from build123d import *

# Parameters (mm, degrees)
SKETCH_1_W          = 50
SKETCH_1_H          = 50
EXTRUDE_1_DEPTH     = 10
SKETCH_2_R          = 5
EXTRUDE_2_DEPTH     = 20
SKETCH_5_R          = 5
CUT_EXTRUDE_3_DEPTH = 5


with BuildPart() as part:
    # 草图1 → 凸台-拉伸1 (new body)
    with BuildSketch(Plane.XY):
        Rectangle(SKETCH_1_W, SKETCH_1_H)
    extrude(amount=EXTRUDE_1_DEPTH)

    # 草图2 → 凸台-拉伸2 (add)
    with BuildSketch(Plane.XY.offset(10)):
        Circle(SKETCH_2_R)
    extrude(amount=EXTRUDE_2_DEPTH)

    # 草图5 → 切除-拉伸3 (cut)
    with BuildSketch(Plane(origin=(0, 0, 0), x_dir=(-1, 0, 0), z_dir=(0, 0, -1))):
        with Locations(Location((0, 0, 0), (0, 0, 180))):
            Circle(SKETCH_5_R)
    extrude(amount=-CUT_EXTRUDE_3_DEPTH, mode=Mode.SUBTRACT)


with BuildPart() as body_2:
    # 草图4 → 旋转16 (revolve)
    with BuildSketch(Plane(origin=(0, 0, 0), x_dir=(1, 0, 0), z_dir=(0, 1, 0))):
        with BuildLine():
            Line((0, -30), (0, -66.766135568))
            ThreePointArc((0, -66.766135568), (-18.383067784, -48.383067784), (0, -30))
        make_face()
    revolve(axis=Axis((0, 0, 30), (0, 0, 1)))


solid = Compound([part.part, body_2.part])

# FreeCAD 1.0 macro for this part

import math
import FreeCAD as App
import Part
import Sketcher

doc = App.newDocument("Part")
body = doc.addObject("PartDesign::Body", "Body")

# Sketch on XY plane
sketch1 = body.newObject("Sketcher::SketchObject", "Sketch")
sketch1.AttachmentSupport = (doc.getObject("XY_Plane"), [""])
sketch1.MapMode = "FlatFace"
sketch1.addGeometry(Part.LineSegment(App.Vector(-25, 25, 0), App.Vector(-25, -25, 0)), False)
sketch1.addGeometry(Part.LineSegment(App.Vector(-25, -25, 0), App.Vector(25, -25, 0)), False)
sketch1.addGeometry(Part.LineSegment(App.Vector(25, -25, 0), App.Vector(25, 25, 0)), False)
sketch1.addGeometry(Part.LineSegment(App.Vector(25, 25, 0), App.Vector(-25, 25, 0)), False)
sketch1.addConstraint(Sketcher.Constraint("Coincident", 0, 2, 1, 1))
sketch1.addConstraint(Sketcher.Constraint("Coincident", 1, 2, 2, 1))
sketch1.addConstraint(Sketcher.Constraint("Coincident", 2, 2, 3, 1))
sketch1.addConstraint(Sketcher.Constraint("Coincident", 3, 2, 0, 1))
sketch1.addConstraint(Sketcher.Constraint("Vertical", 0))
sketch1.addConstraint(Sketcher.Constraint("Horizontal", 1))
sketch1.addConstraint(Sketcher.Constraint("Vertical", 2))
sketch1.addConstraint(Sketcher.Constraint("Horizontal", 3))
sketch1.addConstraint(Sketcher.Constraint("Symmetric", 0, 2, 2, 2, -1, 1))
sketch1.addConstraint(Sketcher.Constraint("Equal", 3, 0))
sketch1.addConstraint(Sketcher.Constraint("DistanceX", 1, 1, 1, 2, 50.0))
pad1 = body.newObject("PartDesign::Pad", "Pad")
pad1.Profile = sketch1
pad1.Length = 10

# Sketch on XY plane
sketch2 = body.newObject("Sketcher::SketchObject", "Sketch001")
sketch2.AttachmentSupport = (doc.getObject("XY_Plane"), [""])
sketch2.MapMode = "FlatFace"
sketch2.AttachmentOffset = App.Placement(App.Vector(0, 0, 10), App.Rotation())
sketch2.addGeometry(Part.Circle(App.Vector(0, 0, 0), App.Vector(0, 0, 1), 5), False)
sketch2.addConstraint(Sketcher.Constraint("Coincident", 0, 3, -1, 1))
sketch2.addConstraint(Sketcher.Constraint("Diameter", 0, 10.0))
pad2 = body.newObject("PartDesign::Pad", "Pad001")
pad2.Profile = sketch2
pad2.Length = 20

# Sketch on XY plane
sketch3 = body.newObject("Sketcher::SketchObject", "Sketch002")
sketch3.AttachmentSupport = (doc.getObject("XY_Plane"), [""])
sketch3.MapMode = "FlatFace"
sketch3.addGeometry(Part.Circle(App.Vector(0, 0, 0), App.Vector(0, 0, 1), 5), False)
sketch3.addConstraint(Sketcher.Constraint("Coincident", 0, 3, -1, 1))
sketch3.addConstraint(Sketcher.Constraint("Diameter", 0, 10.0))
pocket1 = body.newObject("PartDesign::Pocket", "Pocket")
pocket1.Profile = sketch3
pocket1.Length = 5
pocket1.Reversed = True
body2 = doc.addObject("PartDesign::Body", "Body001")

# Sketch on XZ plane
sketch4 = body2.newObject("Sketcher::SketchObject", "Sketch003")
sketch4.AttachmentSupport = (doc.getObject("XZ_Plane001"), [""])
sketch4.MapMode = "FlatFace"
sketch4.addGeometry(Part.LineSegment(App.Vector(0, 67, 0), App.Vector(0, 30, 0)), False)
sketch4.addGeometry(Part.ArcOfCircle(Part.Circle(App.Vector(0, 48, 0), App.Vector(0, 0, 1), 18), math.radians(90), math.radians(270)), False)
sketch4.addConstraint(Sketcher.Constraint("Coincident", 0, 1, 1, 1))
sketch4.addConstraint(Sketcher.Constraint("Coincident", 1, 2, 0, 2))
sketch4.addConstraint(Sketcher.Constraint("Vertical", 0))
sketch4.addConstraint(Sketcher.Constraint("PointOnObject", 1, 3, -2))
sketch4.addConstraint(Sketcher.Constraint("PointOnObject", 0, 1, -2))
sketch4.addConstraint(Sketcher.Constraint("DistanceY", -1, 1, 1, 2, 30.0))
sketch4.addConstraint(Sketcher.Constraint("Radius", 1, 18.383068))
revolution = body2.newObject("PartDesign::Revolution", "Revolution")
revolution.Profile = sketch4
revolution.ReferenceAxis = (sketch4, ["V_Axis"])
revolution.Angle = 360

doc.recompute()
